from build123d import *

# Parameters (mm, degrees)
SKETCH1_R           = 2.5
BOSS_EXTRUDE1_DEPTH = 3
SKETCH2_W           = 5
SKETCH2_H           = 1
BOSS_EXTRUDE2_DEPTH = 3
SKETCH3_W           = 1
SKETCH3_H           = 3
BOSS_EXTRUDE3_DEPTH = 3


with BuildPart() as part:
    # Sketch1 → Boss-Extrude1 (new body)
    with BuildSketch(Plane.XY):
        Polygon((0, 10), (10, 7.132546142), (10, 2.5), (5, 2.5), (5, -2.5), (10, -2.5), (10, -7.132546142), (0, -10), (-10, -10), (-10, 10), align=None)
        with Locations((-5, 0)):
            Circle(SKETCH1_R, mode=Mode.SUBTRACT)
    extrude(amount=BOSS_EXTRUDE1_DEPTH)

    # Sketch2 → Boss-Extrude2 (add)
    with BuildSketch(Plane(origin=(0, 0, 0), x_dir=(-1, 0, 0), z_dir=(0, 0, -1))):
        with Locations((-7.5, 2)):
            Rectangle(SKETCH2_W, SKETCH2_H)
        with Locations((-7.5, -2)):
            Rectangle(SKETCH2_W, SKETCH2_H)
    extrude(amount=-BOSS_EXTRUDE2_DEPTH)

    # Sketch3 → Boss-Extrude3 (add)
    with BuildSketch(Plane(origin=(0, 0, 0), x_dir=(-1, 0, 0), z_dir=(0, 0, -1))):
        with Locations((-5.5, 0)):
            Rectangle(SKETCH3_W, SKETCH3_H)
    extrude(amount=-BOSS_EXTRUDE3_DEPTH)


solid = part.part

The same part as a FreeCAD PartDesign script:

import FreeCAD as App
import Part
import Sketcher
from FreeCAD import Vector
Q = App.Units.Quantity

doc = App.newDocument("Part")
body = doc.addObject("PartDesign::Body", "Body")

sketch1 = body.newObject("Sketcher::SketchObject", "Sketch")
sketch1.AttachmentSupport = (doc.getObject("XY_Plane"), [""])
sketch1.MapMode = "FlatFace"
sketch1.addGeometry([
    Part.LineSegment(Vector(10, 7.1, 0), Vector(0, 10, 0)),
    Part.LineSegment(Vector(0, 10, 0), Vector(-10, 10, 0)),
    Part.LineSegment(Vector(-10, 10, 0), Vector(-10, -10, 0)),
    Part.LineSegment(Vector(-10, -10, 0), Vector(0, -10, 0)),
    Part.LineSegment(Vector(0, -10, 0), Vector(10, -7.1, 0)),
    Part.LineSegment(Vector(10, -7.1, 0), Vector(10, -2.5, 0)),
    Part.LineSegment(Vector(10, -2.5, 0), Vector(5, -2.5, 0)),
    Part.LineSegment(Vector(5, -2.5, 0), Vector(5, 2.5, 0)),
    Part.LineSegment(Vector(5, 2.5, 0), Vector(10, 2.5, 0)),
    Part.LineSegment(Vector(10, 2.5, 0), Vector(10, 7.1, 0)),
    Part.Circle(Vector(-5, 0, 0), Vector(0, 0, 1), 2.5),
], False)
sketch1.addConstraint([
    Sketcher.Constraint("Coincident", 0, 2, 1, 1),
    Sketcher.Constraint("Coincident", 1, 2, 2, 1),
    Sketcher.Constraint("Coincident", 2, 2, 3, 1),
    Sketcher.Constraint("Coincident", 3, 2, 4, 1),
    Sketcher.Constraint("Coincident", 4, 2, 5, 1),
    Sketcher.Constraint("Coincident", 5, 2, 6, 1),
    Sketcher.Constraint("Coincident", 6, 2, 7, 1),
    Sketcher.Constraint("Coincident", 7, 2, 8, 1),
    Sketcher.Constraint("Coincident", 8, 2, 9, 1),
    Sketcher.Constraint("Coincident", 9, 2, 0, 1),
    Sketcher.Constraint("Horizontal", 1),
    Sketcher.Constraint("Vertical", 2),
    Sketcher.Constraint("Horizontal", 3),
    Sketcher.Constraint("Vertical", 5),
    Sketcher.Constraint("Horizontal", 6),
    Sketcher.Constraint("Vertical", 7),
    Sketcher.Constraint("Horizontal", 8),
    Sketcher.Constraint("Vertical", 9),
    Sketcher.Constraint("Symmetric", 0, 2, 3, 2, -1, 1),
    Sketcher.Constraint("Symmetric", 5, 2, 8, 2, -1),
    Sketcher.Constraint("PointOnObject", 10, 3, -1),
    Sketcher.Constraint("PointOnObject", 0, 2, -2),
    Sketcher.Constraint("Equal", 8, 7),
    Sketcher.Constraint("Equal", 5, 9),
    Sketcher.Constraint("Diameter", 10, Q("5 mm")),
    Sketcher.Constraint("DistanceX", 1, 2, 1, 1, Q("10 mm")),
    Sketcher.Constraint("DistanceX", 6, 2, 6, 1, Q("5 mm")),
    Sketcher.Constraint("DistanceY", 2, 2, 2, 1, Q("20 mm")),
    Sketcher.Constraint("Angle", 0, Q("164 deg")),
    Sketcher.Constraint("DistanceX", 10, 3, -1, 1, Q("5 mm")),
    Sketcher.Constraint("DistanceX", -1, 1, 4, 2, Q("10 mm")),
])
pad1 = body.newObject("PartDesign::Pad", "Pad")
pad1.Profile = sketch1
pad1.Length = 3

sketch2 = body.newObject("Sketcher::SketchObject", "Sketch001")
sketch2.AttachmentSupport = (doc.getObject("XY_Plane"), [""])
sketch2.MapMode = "FlatFace"
sketch2.addGeometry([
    Part.LineSegment(Vector(10, 2.5, 0), Vector(10, 1.5, 0)),
    Part.LineSegment(Vector(10, 1.5, 0), Vector(5, 1.5, 0)),
    Part.LineSegment(Vector(5, 1.5, 0), Vector(5, 2.5, 0)),
    Part.LineSegment(Vector(5, 2.5, 0), Vector(10, 2.5, 0)),
    Part.LineSegment(Vector(10, -1.5, 0), Vector(10, -2.5, 0)),
    Part.LineSegment(Vector(10, -2.5, 0), Vector(5, -2.5, 0)),
    Part.LineSegment(Vector(5, -2.5, 0), Vector(5, -1.5, 0)),
    Part.LineSegment(Vector(5, -1.5, 0), Vector(10, -1.5, 0)),
], False)
sketch2.addConstraint([
    Sketcher.Constraint("Coincident", 0, 2, 1, 1),
    Sketcher.Constraint("Coincident", 1, 2, 2, 1),
    Sketcher.Constraint("Coincident", 2, 2, 3, 1),
    Sketcher.Constraint("Coincident", 3, 2, 0, 1),
    Sketcher.Constraint("Coincident", 4, 2, 5, 1),
    Sketcher.Constraint("Coincident", 5, 2, 6, 1),
    Sketcher.Constraint("Coincident", 6, 2, 7, 1),
    Sketcher.Constraint("Coincident", 7, 2, 4, 1),
    Sketcher.Constraint("Vertical", 0),
    Sketcher.Constraint("Horizontal", 1),
    Sketcher.Constraint("Vertical", 2),
    Sketcher.Constraint("Horizontal", 3),
    Sketcher.Constraint("Vertical", 4),
    Sketcher.Constraint("Horizontal", 5),
    Sketcher.Constraint("Vertical", 6),
    Sketcher.Constraint("Horizontal", 7),
    Sketcher.Constraint("Symmetric", 3, 2, 4, 2, -1),
    Sketcher.Constraint("Symmetric", 1, 2, 6, 2, -1),
    Sketcher.Constraint("DistanceX", 1, 2, 1, 1, Q("5 mm")),
    Sketcher.Constraint("DistanceY", 0, 2, 0, 1, Q("1 mm")),
    Sketcher.Constraint("DistanceX", -1, 1, 0, 2, Q("10 mm")),
    Sketcher.Constraint("DistanceY", 4, 2, 0, 2, Q("4 mm")),
])
pad2 = body.newObject("PartDesign::Pad", "Pad001")
pad2.Profile = sketch2
pad2.Length = 3

sketch3 = body.newObject("Sketcher::SketchObject", "Sketch002")
sketch3.AttachmentSupport = (doc.getObject("XY_Plane"), [""])
sketch3.MapMode = "FlatFace"
sketch3.addGeometry([
    Part.LineSegment(Vector(6, 1.5, 0), Vector(6, -1.5, 0)),
    Part.LineSegment(Vector(6, -1.5, 0), Vector(5, -1.5, 0)),
    Part.LineSegment(Vector(5, -1.5, 0), Vector(5, 1.5, 0)),
    Part.LineSegment(Vector(5, 1.5, 0), Vector(6, 1.5, 0)),
], False)
sketch3.addConstraint([
    Sketcher.Constraint("Coincident", 0, 2, 1, 1),
    Sketcher.Constraint("Coincident", 1, 2, 2, 1),
    Sketcher.Constraint("Coincident", 2, 2, 3, 1),
    Sketcher.Constraint("Coincident", 3, 2, 0, 1),
    Sketcher.Constraint("Vertical", 0),
    Sketcher.Constraint("Horizontal", 1),
    Sketcher.Constraint("Vertical", 2),
    Sketcher.Constraint("Horizontal", 3),
    Sketcher.Constraint("DistanceX", 1, 2, 1, 1, Q("1 mm")),
    Sketcher.Constraint("DistanceY", 0, 2, 0, 1, Q("3 mm")),
    Sketcher.Constraint("DistanceX", -1, 1, 0, 2, Q("6 mm")),
    Sketcher.Constraint("DistanceY", 0, 2, -1, 1, Q("1.5 mm")),
])
pad3 = body.newObject("PartDesign::Pad", "Pad002")
pad3.Profile = sketch3
pad3.Length = 3

doc.recompute()
